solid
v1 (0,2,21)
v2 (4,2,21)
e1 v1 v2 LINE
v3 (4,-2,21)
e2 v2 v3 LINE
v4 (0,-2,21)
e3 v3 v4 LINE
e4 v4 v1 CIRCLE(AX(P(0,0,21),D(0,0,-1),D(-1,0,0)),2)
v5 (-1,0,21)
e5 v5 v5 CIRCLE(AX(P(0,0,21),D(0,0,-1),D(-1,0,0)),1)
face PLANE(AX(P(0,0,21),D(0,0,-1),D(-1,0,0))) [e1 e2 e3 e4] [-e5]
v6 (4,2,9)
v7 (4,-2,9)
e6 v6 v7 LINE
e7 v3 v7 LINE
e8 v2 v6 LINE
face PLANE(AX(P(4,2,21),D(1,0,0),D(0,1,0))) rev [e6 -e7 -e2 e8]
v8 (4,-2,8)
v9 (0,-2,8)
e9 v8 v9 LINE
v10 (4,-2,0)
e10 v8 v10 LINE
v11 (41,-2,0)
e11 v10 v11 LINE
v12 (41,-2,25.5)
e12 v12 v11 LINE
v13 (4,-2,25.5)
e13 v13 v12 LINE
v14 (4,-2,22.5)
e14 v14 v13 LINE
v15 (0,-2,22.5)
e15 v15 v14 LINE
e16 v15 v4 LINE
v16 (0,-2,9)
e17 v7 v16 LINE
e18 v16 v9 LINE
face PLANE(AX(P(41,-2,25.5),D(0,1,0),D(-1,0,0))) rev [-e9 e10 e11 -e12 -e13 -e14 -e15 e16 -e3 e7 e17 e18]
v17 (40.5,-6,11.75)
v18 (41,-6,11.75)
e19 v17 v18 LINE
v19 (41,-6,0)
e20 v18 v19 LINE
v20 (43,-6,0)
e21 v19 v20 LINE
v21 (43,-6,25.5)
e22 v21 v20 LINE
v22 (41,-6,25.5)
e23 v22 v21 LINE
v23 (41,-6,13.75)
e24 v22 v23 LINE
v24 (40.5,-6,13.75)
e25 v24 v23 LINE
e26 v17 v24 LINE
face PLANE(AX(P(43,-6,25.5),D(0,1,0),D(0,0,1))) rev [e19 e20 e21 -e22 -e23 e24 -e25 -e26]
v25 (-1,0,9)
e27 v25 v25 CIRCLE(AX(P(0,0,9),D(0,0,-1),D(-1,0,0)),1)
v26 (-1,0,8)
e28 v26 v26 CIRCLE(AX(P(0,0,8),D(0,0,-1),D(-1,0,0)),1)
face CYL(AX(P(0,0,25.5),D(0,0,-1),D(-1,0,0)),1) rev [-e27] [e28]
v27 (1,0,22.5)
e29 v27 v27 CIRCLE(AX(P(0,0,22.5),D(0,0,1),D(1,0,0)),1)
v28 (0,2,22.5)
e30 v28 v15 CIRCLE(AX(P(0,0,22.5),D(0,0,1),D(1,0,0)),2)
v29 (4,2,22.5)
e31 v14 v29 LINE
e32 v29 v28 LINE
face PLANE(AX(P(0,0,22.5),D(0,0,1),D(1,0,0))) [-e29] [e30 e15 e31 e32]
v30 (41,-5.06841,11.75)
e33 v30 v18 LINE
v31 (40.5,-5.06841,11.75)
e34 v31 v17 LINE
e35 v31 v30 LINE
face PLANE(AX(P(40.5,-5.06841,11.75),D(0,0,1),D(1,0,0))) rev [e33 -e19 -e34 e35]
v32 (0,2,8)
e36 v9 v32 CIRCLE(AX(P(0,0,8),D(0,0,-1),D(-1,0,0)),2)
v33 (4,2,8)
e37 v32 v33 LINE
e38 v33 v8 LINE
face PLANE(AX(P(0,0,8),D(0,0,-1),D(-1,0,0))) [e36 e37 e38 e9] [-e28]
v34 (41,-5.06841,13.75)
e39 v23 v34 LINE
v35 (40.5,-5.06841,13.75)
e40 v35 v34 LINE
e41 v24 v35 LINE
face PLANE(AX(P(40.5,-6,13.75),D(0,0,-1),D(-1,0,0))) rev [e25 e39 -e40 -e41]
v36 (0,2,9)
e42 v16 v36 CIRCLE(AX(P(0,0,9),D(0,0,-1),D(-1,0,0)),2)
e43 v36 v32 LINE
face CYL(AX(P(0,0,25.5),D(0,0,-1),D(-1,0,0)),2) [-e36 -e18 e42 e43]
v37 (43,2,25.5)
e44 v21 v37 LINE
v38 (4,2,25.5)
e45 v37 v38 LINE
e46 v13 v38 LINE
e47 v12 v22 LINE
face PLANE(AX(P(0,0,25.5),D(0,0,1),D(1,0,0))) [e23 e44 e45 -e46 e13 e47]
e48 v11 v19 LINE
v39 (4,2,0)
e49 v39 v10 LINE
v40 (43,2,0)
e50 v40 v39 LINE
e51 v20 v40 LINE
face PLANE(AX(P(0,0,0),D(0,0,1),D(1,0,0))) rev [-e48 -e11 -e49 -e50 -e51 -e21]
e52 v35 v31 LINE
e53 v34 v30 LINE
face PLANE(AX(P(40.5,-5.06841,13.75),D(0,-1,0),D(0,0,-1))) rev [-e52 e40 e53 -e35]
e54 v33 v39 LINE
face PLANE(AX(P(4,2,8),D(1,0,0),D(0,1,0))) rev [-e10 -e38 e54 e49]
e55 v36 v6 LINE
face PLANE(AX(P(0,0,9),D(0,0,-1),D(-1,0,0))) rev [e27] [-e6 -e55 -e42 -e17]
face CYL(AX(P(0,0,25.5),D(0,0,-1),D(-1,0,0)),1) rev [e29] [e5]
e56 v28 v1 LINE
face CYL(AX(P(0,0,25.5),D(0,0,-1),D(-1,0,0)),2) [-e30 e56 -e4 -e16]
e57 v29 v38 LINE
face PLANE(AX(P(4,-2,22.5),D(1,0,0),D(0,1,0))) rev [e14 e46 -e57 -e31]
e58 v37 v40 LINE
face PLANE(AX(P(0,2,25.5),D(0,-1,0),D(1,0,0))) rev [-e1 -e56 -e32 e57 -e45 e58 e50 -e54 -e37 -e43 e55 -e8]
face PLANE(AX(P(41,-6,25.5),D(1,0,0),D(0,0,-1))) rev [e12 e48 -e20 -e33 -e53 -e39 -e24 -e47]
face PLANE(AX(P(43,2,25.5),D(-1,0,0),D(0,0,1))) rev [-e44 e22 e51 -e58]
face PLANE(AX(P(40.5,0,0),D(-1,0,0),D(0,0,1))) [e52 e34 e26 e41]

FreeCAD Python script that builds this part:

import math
import FreeCAD as App
import Part
import Sketcher
Q = App.Units.Quantity


def add_polygon(sketch, points):
    """Adds a closed chain of lines whose ends are joined by coincident constraints."""
    first, n = sketch.GeometryCount, len(points)
    for a, b in zip(points, points[1:] + points[:1]):
        sketch.addGeometry(Part.LineSegment(App.Vector(*a, 0), App.Vector(*b, 0)), False)
    for i in range(n):
        sketch.addConstraint(Sketcher.Constraint("Coincident", first + i, 2, first + (i + 1) % n, 1))

doc = App.newDocument("Part")
body = doc.addObject("PartDesign::Body", "Body")

# Sketch on XY plane
sketch1 = body.newObject("Sketcher::SketchObject", "Sketch")
sketch1.AttachmentSupport = (doc.getObject("XY_Plane"), [""])
sketch1.MapMode = "FlatFace"
sketch1.addGeometry([
    Part.LineSegment(App.Vector(43, 2, 0), App.Vector(0, 2, 0)),  # 0
    Part.ArcOfCircle(Part.Circle(App.Vector(0, 0, 0), App.Vector(0, 0, 1), 2), math.radians(90), math.radians(270)),  # 1
    Part.LineSegment(App.Vector(0, -2, 0), App.Vector(41, -2, 0)),  # 2
    Part.LineSegment(App.Vector(41, -2, 0), App.Vector(41, -6, 0)),  # 3
    Part.LineSegment(App.Vector(41, -6, 0), App.Vector(43, -6, 0)),  # 4
    Part.LineSegment(App.Vector(43, -6, 0), App.Vector(43, 2, 0)),  # 5
    Part.Circle(App.Vector(0, 0, 0), App.Vector(0, 0, 1), 1),  # 6
], False)
sketch1.addConstraint([
    Sketcher.Constraint("Tangent", 0, 2, 1, 1),
    Sketcher.Constraint("Tangent", 1, 2, 2, 1),
    Sketcher.Constraint("Coincident", 2, 2, 3, 1),
    Sketcher.Constraint("Coincident", 3, 2, 4, 1),
    Sketcher.Constraint("Coincident", 4, 2, 5, 1),
    Sketcher.Constraint("Coincident", 5, 2, 0, 1),
    Sketcher.Constraint("Horizontal", 0),
    Sketcher.Constraint("Horizontal", 2),
    Sketcher.Constraint("Vertical", 3),
    Sketcher.Constraint("Horizontal", 4),
    Sketcher.Constraint("Vertical", 5),
    Sketcher.Constraint("Coincident", 1, 3, -1, 1),
    Sketcher.Constraint("Coincident", 6, 3, -1, 1),
    Sketcher.Constraint("Diameter", 6, Q("2 mm")),
    Sketcher.Constraint("Radius", 1, Q("2 mm")),
    Sketcher.Constraint("DistanceX", 0, 2, 0, 1, Q("43 mm")),
    Sketcher.Constraint("DistanceX", 2, 1, 2, 2, Q("41 mm")),
    Sketcher.Constraint("DistanceY", 3, 2, 3, 1, Q("4 mm")),
])
pad1 = body.newObject("PartDesign::Pad", "Pad")
pad1.Profile = sketch1
pad1.Length = 25.5

# Sketch on XY plane
sketch2 = body.newObject("Sketcher::SketchObject", "Sketch001")
sketch2.AttachmentSupport = (doc.getObject("XY_Plane"), [""])
sketch2.MapMode = "FlatFace"
sketch2.AttachmentOffset = App.Placement(App.Vector(0, 0, 25.5), App.Rotation())
add_polygon(sketch2, [(-4, 2), (-4, -2), (4, -2), (4, 2)])  # lines 0-3
sketch2.addConstraint([
    Sketcher.Constraint("Vertical", 0),
    Sketcher.Constraint("Horizontal", 1),
    Sketcher.Constraint("Vertical", 2),
    Sketcher.Constraint("Horizontal", 3),
    Sketcher.Constraint("Symmetric", 0, 2, 2, 2, -1, 1),
    Sketcher.Constraint("DistanceX", 1, 1, 1, 2, Q("8 mm")),
    Sketcher.Constraint("DistanceY", 0, 2, 0, 1, Q("4 mm")),
])
pocket1 = body.newObject("PartDesign::Pocket", "Pocket")
pocket1.Profile = sketch2
pocket1.Length = 3

# Sketch on XY plane
sketch3 = body.newObject("Sketcher::SketchObject", "Sketch002")
sketch3.AttachmentSupport = (doc.getObject("XY_Plane"), [""])
sketch3.MapMode = "FlatFace"
sketch3.addGeometry([
    Part.LineSegment(App.Vector(0, 2, 0), App.Vector(4, 2, 0)),
    Part.LineSegment(App.Vector(4, 2, 0), App.Vector(4, -2, 0)),
    Part.LineSegment(App.Vector(4, -2, 0), App.Vector(0, -2, 0)),
    Part.ArcOfCircle(Part.Circle(App.Vector(0, 0, 0), App.Vector(0, 0, 1), 2), math.radians(90), math.radians(270)),
], False)
sketch3.addConstraint([
    Sketcher.Constraint("Coincident", 0, 2, 1, 1),
    Sketcher.Constraint("Coincident", 1, 2, 2, 1),
    Sketcher.Constraint("Tangent", 2, 2, 3, 2),
    Sketcher.Constraint("Tangent", 3, 1, 0, 1),
    Sketcher.Constraint("Horizontal", 0),
    Sketcher.Constraint("Vertical", 1),
    Sketcher.Constraint("Horizontal", 2),
    Sketcher.Constraint("Coincident", 3, 3, -1, 1),
    Sketcher.Constraint("Equal", 2, 1),
    Sketcher.Constraint("Radius", 3, Q("2 mm")),
])
pocket2 = body.newObject("PartDesign::Pocket", "Pocket001")
pocket2.Profile = sketch3
pocket2.Length = 8
pocket2.Reversed = True

# Sketch on XY plane
sketch4 = body.newObject("Sketcher::SketchObject", "Sketch003")
sketch4.AttachmentSupport = (doc.getObject("XY_Plane"), [""])
sketch4.MapMode = "FlatFace"
sketch4.AttachmentOffset = App.Placement(App.Vector(0, 0, 9), App.Rotation())
sketch4.addGeometry([
    Part.ArcOfCircle(Part.Circle(App.Vector(0, 0, 0), App.Vector(0, 0, 1), 2), math.radians(90), math.radians(270)),
    Part.LineSegment(App.Vector(0, 2, 0), App.Vector(4, 2, 0)),
    Part.LineSegment(App.Vector(4, 2, 0), App.Vector(4, -2, 0)),
    Part.LineSegment(App.Vector(4, -2, 0), App.Vector(0, -2, 0)),
], False)
sketch4.addConstraint([
    Sketcher.Constraint("Tangent", 0, 1, 1, 1),
    Sketcher.Constraint("Coincident", 1, 2, 2, 1),
    Sketcher.Constraint("Coincident", 2, 2, 3, 1),
    Sketcher.Constraint("Tangent", 3, 2, 0, 2),
    Sketcher.Constraint("Horizontal", 1),
    Sketcher.Constraint("Vertical", 2),
    Sketcher.Constraint("Horizontal", 3),
    Sketcher.Constraint("Coincident", 0, 3, -1, 1),
    Sketcher.Constraint("Equal", 3, 2),
    Sketcher.Constraint("Radius", 0, Q("2 mm")),
])
pocket3 = body.newObject("PartDesign::Pocket", "Pocket002")
pocket3.Profile = sketch4
pocket3.Length = 12
pocket3.Reversed = True

# Sketch on YZ plane
sketch5 = body.newObject("Sketcher::SketchObject", "Sketch004")
sketch5.AttachmentSupport = (doc.getObject("YZ_Plane"), [""])
sketch5.MapMode = "FlatFace"
sketch5.AttachmentOffset = App.Placement(App.Vector(0, 0, 41), App.Rotation())
add_polygon(sketch5, [(-5.1, 13.8), (-5.1, 11.8), (-6, 11.8), (-6, 13.8)])  # lines 0-3
sketch5.addConstraint([
    Sketcher.Constraint("Vertical", 0),
    Sketcher.Constraint("Horizontal", 1),
    Sketcher.Constraint("Vertical", 2),
    Sketcher.Constraint("Horizontal", 3),
    Sketcher.Constraint("DistanceY", 0, 2, 0, 1, Q("2 mm")),
    Sketcher.Constraint("DistanceX", 1, 2, -1, 1, Q("6 mm")),
    Sketcher.Constraint("DistanceY", -1, 1, 0, 2, Q("11.75 mm")),
    Sketcher.Constraint("DistanceX", 1, 2, 1, 1, Q("0.93159 mm")),
])
pad2 = body.newObject("PartDesign::Pad", "Pad001")
pad2.Profile = sketch5
pad2.Length = 0.5
pad2.Reversed = True

doc.recompute()
